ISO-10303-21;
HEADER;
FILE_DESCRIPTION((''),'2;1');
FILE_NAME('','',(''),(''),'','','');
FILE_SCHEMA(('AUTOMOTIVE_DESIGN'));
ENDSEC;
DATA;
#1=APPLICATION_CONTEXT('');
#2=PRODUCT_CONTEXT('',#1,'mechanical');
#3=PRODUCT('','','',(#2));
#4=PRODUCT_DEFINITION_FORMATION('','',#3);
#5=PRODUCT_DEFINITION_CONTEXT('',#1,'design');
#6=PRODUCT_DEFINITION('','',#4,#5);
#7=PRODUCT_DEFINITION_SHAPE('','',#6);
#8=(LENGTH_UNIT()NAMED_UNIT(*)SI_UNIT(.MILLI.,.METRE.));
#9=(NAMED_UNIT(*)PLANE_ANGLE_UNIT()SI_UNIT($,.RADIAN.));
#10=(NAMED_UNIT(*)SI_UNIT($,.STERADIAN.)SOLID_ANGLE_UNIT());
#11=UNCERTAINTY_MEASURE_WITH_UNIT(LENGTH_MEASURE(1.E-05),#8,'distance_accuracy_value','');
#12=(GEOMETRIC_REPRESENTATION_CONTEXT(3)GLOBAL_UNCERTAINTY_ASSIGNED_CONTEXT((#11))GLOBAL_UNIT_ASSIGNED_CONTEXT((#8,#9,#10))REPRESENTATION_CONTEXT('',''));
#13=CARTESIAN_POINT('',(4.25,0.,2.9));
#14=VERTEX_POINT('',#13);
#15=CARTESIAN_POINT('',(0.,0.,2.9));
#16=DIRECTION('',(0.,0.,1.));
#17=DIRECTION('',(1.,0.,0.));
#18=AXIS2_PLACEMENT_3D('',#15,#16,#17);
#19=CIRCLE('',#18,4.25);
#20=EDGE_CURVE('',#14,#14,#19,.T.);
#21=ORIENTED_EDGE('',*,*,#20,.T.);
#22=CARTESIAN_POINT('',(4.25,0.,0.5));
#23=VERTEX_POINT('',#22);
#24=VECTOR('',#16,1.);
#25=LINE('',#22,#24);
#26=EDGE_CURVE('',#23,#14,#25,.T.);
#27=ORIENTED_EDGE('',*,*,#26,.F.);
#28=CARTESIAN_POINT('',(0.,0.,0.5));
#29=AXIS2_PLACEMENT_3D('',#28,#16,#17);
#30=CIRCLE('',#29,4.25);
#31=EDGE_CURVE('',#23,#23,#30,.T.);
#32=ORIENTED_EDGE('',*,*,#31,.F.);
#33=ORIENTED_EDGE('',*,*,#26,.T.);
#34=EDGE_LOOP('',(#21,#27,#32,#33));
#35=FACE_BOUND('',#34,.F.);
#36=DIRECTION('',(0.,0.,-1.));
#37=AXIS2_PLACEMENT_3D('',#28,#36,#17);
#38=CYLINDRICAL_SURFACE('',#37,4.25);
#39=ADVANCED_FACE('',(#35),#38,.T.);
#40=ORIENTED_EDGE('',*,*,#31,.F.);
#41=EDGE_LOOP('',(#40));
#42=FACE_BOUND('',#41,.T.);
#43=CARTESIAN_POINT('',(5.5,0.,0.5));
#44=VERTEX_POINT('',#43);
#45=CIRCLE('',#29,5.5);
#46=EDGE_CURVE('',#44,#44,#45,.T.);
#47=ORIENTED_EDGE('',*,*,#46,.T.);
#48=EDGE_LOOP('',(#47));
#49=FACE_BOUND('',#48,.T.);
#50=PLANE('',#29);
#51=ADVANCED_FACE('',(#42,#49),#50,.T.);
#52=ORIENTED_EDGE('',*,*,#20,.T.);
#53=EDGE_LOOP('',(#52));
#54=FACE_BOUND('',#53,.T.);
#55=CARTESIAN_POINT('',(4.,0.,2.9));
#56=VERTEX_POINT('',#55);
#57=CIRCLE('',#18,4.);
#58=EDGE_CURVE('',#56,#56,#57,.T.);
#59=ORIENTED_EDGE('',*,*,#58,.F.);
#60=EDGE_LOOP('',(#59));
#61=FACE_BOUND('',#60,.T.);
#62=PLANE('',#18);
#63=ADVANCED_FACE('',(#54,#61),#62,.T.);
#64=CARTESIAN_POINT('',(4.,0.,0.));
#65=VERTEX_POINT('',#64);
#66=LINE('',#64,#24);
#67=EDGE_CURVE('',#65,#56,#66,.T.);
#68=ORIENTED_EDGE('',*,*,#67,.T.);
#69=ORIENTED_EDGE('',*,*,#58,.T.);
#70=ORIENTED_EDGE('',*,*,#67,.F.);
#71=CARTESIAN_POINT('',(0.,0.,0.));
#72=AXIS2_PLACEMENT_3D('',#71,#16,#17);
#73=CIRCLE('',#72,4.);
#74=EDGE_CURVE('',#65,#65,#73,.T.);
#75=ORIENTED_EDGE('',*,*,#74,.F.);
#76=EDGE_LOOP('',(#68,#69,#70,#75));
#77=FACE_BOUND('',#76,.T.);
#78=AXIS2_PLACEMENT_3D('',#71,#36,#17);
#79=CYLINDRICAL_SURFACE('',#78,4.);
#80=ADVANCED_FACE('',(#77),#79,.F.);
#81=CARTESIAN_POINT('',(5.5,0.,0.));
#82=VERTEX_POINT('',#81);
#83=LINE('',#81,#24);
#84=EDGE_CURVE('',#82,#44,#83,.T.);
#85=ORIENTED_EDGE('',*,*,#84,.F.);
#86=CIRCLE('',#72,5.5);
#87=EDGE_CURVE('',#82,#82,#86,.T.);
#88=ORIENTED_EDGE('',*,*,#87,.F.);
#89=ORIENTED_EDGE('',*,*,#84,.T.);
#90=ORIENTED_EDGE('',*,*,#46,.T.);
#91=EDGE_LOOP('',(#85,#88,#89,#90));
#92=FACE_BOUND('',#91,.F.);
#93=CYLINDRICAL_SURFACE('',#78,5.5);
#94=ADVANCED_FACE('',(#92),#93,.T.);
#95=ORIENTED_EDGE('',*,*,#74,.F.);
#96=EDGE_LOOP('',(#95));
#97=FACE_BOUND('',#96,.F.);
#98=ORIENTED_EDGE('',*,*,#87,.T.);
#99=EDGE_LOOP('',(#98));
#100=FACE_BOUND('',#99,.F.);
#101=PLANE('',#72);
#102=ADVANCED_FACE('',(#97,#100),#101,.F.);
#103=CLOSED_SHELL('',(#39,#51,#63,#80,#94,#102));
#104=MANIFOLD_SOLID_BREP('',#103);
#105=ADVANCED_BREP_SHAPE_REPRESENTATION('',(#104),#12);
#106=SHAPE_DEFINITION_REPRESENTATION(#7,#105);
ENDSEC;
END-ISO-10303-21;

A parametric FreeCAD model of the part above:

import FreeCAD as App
import Part
import Sketcher

V = App.Vector
Q = App.Units.Quantity

doc = App.newDocument("Part")
body = doc.addObject("PartDesign::Body", "Body")

sketch1 = body.newObject("Sketcher::SketchObject", "Sketch")
sketch1.AttachmentSupport = (doc.getObject("XY_Plane"), [""])
sketch1.MapMode = "FlatFace"
sketch1.addGeometry([
    Part.Circle(V(0, 0, 0), V(0, 0, 1), 5.5),
    Part.Circle(V(0, 0, 0), V(0, 0, 1), 4),
], False)
sketch1.addConstraint([
    Sketcher.Constraint("Coincident", 0, 3, -1, 1),
    Sketcher.Constraint("Coincident", 1, 3, -1, 1),
    Sketcher.Constraint("Diameter", 0, Q("11 mm")),
    Sketcher.Constraint("Diameter", 1, Q("8 mm")),
])
pad1 = body.newObject("PartDesign::Pad", "Pad")
pad1.Profile = sketch1
pad1.Length = 0.5

sketch2 = body.newObject("Sketcher::SketchObject", "Sketch001")
sketch2.AttachmentSupport = (doc.getObject("XY_Plane"), [""])
sketch2.MapMode = "FlatFace"
sketch2.AttachmentOffset = App.Placement(V(0, 0, 0.5), App.Rotation())
sketch2.addGeometry([
    Part.Circle(V(0, 0, 0), V(0, 0, 1), 4.2),
    Part.Circle(V(0, 0, 0), V(0, 0, 1), 4),
], False)
sketch2.addConstraint([
    Sketcher.Constraint("Coincident", 0, 3, -1, 1),
    Sketcher.Constraint("Coincident", 1, 3, -1, 1),
    Sketcher.Constraint("Diameter", 1, Q("8 mm")),
    Sketcher.Constraint("Diameter", 0, Q("8.5 mm")),
])
pad2 = body.newObject("PartDesign::Pad", "Pad001")
pad2.Profile = sketch2
pad2.Length = 2.4

doc.recompute()
